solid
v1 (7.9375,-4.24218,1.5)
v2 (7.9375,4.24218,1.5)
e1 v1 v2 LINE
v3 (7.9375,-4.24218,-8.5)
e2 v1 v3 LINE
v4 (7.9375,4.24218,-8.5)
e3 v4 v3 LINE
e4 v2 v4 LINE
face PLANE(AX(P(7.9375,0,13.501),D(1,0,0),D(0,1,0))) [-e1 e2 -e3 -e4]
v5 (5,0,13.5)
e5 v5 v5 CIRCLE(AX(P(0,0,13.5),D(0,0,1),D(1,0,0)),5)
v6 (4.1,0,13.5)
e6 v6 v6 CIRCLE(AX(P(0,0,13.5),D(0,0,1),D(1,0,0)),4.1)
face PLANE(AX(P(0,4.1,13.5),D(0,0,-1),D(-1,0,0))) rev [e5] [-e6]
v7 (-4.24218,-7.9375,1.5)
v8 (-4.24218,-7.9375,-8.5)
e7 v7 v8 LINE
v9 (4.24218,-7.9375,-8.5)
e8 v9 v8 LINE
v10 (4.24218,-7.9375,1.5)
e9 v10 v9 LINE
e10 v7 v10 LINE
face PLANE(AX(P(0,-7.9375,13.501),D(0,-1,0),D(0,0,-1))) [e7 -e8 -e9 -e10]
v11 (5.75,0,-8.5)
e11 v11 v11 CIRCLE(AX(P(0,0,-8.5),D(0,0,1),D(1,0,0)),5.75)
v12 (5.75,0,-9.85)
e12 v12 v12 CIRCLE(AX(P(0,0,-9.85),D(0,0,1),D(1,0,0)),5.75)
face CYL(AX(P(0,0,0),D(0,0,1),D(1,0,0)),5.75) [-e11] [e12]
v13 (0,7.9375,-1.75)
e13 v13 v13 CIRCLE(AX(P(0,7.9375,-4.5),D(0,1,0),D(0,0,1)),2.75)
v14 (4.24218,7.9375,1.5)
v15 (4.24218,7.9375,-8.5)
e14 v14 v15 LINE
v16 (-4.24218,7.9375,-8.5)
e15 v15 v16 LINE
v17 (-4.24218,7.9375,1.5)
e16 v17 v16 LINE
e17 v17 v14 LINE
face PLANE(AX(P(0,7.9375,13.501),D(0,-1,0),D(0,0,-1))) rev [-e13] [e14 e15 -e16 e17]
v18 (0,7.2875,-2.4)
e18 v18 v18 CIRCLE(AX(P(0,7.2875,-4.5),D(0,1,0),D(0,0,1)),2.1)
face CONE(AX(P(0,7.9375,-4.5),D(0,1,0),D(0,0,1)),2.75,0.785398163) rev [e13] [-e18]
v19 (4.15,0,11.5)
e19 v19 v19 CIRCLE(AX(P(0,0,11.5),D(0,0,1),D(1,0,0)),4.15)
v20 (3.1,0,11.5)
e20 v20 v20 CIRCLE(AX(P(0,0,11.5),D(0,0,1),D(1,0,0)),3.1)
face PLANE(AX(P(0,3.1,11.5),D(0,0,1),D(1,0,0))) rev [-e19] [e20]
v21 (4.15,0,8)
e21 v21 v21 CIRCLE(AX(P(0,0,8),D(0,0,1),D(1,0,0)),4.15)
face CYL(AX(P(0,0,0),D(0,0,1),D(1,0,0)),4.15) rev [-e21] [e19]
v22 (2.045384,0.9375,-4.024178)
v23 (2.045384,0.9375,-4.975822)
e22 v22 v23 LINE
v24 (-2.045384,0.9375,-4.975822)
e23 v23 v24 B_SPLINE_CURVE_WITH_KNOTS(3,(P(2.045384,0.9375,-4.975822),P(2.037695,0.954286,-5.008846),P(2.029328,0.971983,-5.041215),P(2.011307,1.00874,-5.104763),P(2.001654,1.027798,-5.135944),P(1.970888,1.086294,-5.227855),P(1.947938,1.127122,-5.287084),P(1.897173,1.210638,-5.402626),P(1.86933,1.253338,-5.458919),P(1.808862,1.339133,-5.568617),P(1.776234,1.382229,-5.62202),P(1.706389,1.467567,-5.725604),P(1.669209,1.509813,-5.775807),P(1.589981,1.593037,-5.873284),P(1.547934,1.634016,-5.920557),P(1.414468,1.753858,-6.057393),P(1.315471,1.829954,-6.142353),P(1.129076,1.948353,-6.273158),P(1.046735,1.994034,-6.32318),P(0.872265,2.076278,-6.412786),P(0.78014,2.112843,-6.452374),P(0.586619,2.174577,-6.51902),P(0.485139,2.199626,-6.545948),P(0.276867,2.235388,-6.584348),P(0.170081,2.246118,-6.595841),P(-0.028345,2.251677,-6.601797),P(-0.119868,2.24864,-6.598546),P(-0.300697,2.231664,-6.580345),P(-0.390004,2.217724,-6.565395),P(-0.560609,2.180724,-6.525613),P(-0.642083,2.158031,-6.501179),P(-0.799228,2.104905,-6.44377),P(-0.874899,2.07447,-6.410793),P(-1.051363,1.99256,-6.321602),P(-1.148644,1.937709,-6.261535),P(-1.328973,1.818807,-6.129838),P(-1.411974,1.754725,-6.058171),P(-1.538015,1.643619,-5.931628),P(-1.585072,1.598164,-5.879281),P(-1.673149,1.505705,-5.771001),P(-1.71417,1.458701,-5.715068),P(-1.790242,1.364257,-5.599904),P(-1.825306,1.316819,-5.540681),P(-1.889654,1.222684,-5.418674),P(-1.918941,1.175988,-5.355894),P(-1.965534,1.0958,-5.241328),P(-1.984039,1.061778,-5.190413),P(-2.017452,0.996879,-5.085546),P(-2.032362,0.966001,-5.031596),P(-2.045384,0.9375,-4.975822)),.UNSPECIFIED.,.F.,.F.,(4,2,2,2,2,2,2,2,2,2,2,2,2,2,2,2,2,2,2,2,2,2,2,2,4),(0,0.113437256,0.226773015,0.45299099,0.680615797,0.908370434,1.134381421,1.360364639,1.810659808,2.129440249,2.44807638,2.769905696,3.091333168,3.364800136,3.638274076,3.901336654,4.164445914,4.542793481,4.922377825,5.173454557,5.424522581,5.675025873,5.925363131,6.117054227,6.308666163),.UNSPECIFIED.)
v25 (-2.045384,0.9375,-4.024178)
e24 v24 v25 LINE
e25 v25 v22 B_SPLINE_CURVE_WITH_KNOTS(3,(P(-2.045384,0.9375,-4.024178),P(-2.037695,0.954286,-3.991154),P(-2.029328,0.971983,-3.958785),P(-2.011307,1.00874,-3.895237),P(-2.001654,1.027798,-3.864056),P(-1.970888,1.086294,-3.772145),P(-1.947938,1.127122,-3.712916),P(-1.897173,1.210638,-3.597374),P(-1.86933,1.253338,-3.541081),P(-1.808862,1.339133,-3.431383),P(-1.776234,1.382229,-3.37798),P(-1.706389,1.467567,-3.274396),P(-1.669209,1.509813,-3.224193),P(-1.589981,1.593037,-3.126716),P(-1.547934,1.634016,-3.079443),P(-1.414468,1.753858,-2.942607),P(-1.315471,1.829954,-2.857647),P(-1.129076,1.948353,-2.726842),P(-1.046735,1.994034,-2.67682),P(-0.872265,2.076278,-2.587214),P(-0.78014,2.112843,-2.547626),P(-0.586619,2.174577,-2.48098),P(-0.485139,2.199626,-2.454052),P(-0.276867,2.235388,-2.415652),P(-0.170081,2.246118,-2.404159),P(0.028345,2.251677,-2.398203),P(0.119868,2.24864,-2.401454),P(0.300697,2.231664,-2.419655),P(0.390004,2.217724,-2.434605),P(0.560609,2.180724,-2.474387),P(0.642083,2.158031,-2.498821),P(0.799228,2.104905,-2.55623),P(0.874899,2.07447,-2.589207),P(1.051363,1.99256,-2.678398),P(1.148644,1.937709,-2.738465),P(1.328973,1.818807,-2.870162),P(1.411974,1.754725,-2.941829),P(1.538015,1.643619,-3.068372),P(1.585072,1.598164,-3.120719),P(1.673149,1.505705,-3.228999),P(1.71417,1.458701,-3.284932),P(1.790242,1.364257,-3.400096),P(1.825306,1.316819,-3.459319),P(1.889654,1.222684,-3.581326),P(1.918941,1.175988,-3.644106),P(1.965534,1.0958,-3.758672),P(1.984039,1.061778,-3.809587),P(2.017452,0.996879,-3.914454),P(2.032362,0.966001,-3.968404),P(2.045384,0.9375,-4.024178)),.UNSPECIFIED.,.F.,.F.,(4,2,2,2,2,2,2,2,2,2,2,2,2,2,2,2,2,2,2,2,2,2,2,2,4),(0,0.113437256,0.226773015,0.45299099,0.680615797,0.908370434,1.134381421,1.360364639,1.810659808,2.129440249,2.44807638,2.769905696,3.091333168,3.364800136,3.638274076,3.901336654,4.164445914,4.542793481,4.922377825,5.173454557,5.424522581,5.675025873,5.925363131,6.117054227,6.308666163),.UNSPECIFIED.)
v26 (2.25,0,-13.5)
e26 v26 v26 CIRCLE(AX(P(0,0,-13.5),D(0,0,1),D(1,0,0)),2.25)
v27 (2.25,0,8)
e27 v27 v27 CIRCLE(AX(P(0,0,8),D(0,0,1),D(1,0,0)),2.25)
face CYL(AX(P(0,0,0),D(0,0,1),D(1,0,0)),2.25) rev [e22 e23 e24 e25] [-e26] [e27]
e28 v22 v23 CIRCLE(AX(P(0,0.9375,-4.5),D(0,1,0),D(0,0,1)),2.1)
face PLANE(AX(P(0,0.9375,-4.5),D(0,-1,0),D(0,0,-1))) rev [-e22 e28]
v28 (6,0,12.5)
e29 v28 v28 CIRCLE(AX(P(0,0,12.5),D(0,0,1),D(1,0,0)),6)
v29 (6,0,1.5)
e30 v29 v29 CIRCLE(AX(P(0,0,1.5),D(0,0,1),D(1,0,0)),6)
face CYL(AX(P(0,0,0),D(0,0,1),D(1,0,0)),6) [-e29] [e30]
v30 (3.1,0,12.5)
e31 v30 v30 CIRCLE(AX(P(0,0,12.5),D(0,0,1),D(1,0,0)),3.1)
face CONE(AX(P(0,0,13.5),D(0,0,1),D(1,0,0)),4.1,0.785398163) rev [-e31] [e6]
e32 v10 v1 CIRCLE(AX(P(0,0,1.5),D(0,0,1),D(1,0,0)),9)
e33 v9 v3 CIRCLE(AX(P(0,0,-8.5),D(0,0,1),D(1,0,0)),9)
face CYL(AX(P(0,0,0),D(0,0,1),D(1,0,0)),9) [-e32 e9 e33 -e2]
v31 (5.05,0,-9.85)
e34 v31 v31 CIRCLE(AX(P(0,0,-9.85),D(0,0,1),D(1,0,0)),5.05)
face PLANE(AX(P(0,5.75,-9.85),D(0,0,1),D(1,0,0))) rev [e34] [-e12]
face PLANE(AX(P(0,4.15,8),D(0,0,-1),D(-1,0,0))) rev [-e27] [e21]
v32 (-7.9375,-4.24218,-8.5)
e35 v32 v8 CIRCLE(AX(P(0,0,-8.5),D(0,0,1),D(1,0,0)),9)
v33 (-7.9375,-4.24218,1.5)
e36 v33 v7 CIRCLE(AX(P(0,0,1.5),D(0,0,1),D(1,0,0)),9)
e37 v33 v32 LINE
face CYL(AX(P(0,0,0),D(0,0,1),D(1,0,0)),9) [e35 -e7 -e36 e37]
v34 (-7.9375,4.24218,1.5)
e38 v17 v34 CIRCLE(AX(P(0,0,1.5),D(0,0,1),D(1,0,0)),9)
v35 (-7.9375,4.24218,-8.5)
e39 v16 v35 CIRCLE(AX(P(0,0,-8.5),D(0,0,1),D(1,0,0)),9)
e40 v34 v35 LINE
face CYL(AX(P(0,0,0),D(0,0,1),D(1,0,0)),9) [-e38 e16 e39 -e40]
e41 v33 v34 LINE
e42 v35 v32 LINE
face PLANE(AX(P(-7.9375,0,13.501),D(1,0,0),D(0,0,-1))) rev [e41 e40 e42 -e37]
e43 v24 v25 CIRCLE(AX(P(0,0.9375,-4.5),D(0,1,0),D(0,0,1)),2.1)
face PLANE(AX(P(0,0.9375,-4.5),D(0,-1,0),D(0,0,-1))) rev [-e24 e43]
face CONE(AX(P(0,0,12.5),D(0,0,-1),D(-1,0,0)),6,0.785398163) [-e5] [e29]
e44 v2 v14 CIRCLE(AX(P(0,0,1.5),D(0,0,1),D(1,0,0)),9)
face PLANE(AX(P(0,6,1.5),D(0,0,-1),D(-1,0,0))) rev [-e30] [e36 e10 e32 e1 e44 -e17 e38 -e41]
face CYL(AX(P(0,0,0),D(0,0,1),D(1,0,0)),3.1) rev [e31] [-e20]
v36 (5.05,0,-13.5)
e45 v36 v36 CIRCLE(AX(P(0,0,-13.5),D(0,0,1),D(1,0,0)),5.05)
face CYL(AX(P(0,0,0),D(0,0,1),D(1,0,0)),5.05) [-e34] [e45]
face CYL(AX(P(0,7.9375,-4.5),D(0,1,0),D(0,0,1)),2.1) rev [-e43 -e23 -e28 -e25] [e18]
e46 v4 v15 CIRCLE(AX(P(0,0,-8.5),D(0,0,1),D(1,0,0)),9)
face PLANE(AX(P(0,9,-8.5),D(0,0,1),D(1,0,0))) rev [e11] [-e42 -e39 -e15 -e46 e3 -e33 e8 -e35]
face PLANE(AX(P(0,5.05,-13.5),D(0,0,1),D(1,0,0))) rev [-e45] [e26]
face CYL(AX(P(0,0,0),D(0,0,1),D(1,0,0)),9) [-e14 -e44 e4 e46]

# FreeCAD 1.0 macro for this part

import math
import FreeCAD as App
import Part
import Sketcher

V = App.Vector
Q = App.Units.Quantity

doc = App.newDocument("Part")
body = doc.addObject("PartDesign::Body", "Body")

# Sketch on YZ plane
sketch1 = body.newObject("Sketcher::SketchObject", "Sketch")
sketch1.AttachmentSupport = (doc.getObject("YZ_Plane"), [""])
sketch1.MapMode = "FlatFace"
sketch1.addGeometry([
    Part.LineSegment(V(4.1, 13.5, 0), V(3.1, 12.5, 0)),  # 0
    Part.LineSegment(V(3.1, 12.5, 0), V(3.1, 11.5, 0)),  # 1
    Part.LineSegment(V(3.1, 11.5, 0), V(4.2, 11.5, 0)),  # 2
    Part.LineSegment(V(4.2, 11.5, 0), V(4.2, 8, 0)),  # 3
    Part.LineSegment(V(4.2, 8, 0), V(2.2, 8, 0)),  # 4
    Part.LineSegment(V(2.2, 8, 0), V(2.2, -13.5, 0)),  # 5
    Part.LineSegment(V(2.2, -13.5, 0), V(5, -13.5, 0)),  # 6
    Part.LineSegment(V(5, -13.5, 0), V(5, -9.8, 0)),  # 7
    Part.LineSegment(V(5, -9.8, 0), V(5.8, -9.8, 0)),  # 8
    Part.LineSegment(V(5.8, -9.8, 0), V(5.8, -8.5, 0)),  # 9
    Part.LineSegment(V(5.8, -8.5, 0), V(9, -8.5, 0)),  # 10
    Part.LineSegment(V(9, -8.5, 0), V(9, 1.5, 0)),  # 11
    Part.LineSegment(V(9, 1.5, 0), V(6, 1.5, 0)),  # 12
    Part.LineSegment(V(6, 1.5, 0), V(6, 12.5, 0)),  # 13
    Part.LineSegment(V(6, 12.5, 0), V(5, 13.5, 0)),  # 14
    Part.LineSegment(V(5, 13.5, 0), V(4.1, 13.5, 0)),  # 15
], False)
sketch1.addConstraint([
    Sketcher.Constraint("Coincident", 0, 2, 1, 1),
    Sketcher.Constraint("Coincident", 1, 2, 2, 1),
    Sketcher.Constraint("Coincident", 2, 2, 3, 1),
    Sketcher.Constraint("Coincident", 3, 2, 4, 1),
    Sketcher.Constraint("Coincident", 4, 2, 5, 1),
    Sketcher.Constraint("Coincident", 5, 2, 6, 1),
    Sketcher.Constraint("Coincident", 6, 2, 7, 1),
    Sketcher.Constraint("Coincident", 7, 2, 8, 1),
    Sketcher.Constraint("Coincident", 8, 2, 9, 1),
    Sketcher.Constraint("Coincident", 9, 2, 10, 1),
    Sketcher.Constraint("Coincident", 10, 2, 11, 1),
    Sketcher.Constraint("Coincident", 11, 2, 12, 1),
    Sketcher.Constraint("Coincident", 12, 2, 13, 1),
    Sketcher.Constraint("Coincident", 13, 2, 14, 1),
    Sketcher.Constraint("Coincident", 14, 2, 15, 1),
    Sketcher.Constraint("Coincident", 15, 2, 0, 1),
    Sketcher.Constraint("Vertical", 1),
    Sketcher.Constraint("Horizontal", 2),
    Sketcher.Constraint("Vertical", 3),
    Sketcher.Constraint("Horizontal", 4),
    Sketcher.Constraint("Vertical", 5),
    Sketcher.Constraint("Horizontal", 6),
    Sketcher.Constraint("Vertical", 7),
    Sketcher.Constraint("Horizontal", 8),
    Sketcher.Constraint("Vertical", 9),
    Sketcher.Constraint("Horizontal", 10),
    Sketcher.Constraint("Vertical", 11),
    Sketcher.Constraint("Horizontal", 12),
    Sketcher.Constraint("Vertical", 13),
    Sketcher.Constraint("Horizontal", 15),
    Sketcher.Constraint("Perpendicular", 0, 14),
    Sketcher.Constraint("Horizontal", 0, 2, 13, 2),
    Sketcher.Constraint("Equal", 0, 14),
    Sketcher.Constraint("DistanceX", 12, 2, 12, 1, Q("3 mm")),
    Sketcher.Constraint("DistanceY", 1, 2, 1, 1, Q("1 mm")),
    Sketcher.Constraint("DistanceY", 11, 1, 11, 2, Q("10 mm")),
    Sketcher.Constraint("DistanceY", 13, 1, 13, 2, Q("11 mm")),
    Sketcher.Constraint("DistanceX", 4, 2, 4, 1, Q("1.9 mm")),
    Sketcher.Constraint("DistanceX", 6, 1, 6, 2, Q("2.8 mm")),
    Sketcher.Constraint("DistanceX", 8, 1, 8, 2, Q("0.7 mm")),
    Sketcher.Constraint("DistanceX", 15, 2, 15, 1, Q("0.9 mm")),
    Sketcher.Constraint("DistanceY", 3, 2, 3, 1, Q("3.5 mm")),
    Sketcher.Constraint("DistanceY", 5, 2, 5, 1, Q("21.5 mm")),
    Sketcher.Constraint("DistanceY", -1, 1, 3, 2, Q("8 mm")),
    Sketcher.Constraint("DistanceX", -1, 1, 10, 2, Q("9 mm")),
    Sketcher.Constraint("DistanceX", -1, 1, 14, 2, Q("5 mm")),
    Sketcher.Constraint("DistanceX", 2, 1, 2, 2, Q("1.05 mm")),
    Sketcher.Constraint("DistanceY", 7, 1, 7, 2, Q("3.65 mm")),
])
revolution = body.newObject("PartDesign::Revolution", "Revolution")
revolution.Profile = sketch1
revolution.ReferenceAxis = (sketch1, ["V_Axis"])
revolution.Angle = 360

# Sketch on XY plane
sketch2 = body.newObject("Sketcher::SketchObject", "Sketch001")
sketch2.AttachmentSupport = (doc.getObject("XY_Plane"), [""])
sketch2.MapMode = "FlatFace"
sketch2.AttachmentOffset = App.Placement(V(0, 0, -8.5), App.Rotation())
sketch2.addGeometry([
    Part.ArcOfCircle(Part.Circle(V(0, 0, 0), V(0, 0, 1), 9), math.radians(62), math.radians(118)),
    Part.LineSegment(V(4, 8, 0), V(-4, 8, 0)),
], False)
sketch2.addConstraint([
    Sketcher.Constraint("Coincident", 0, 1, 1, 1),
    Sketcher.Constraint("Coincident", 1, 2, 0, 2),
    Sketcher.Constraint("Horizontal", 1),
    Sketcher.Constraint("Coincident", 0, 3, -1, 1),
    Sketcher.Constraint("Radius", 0, Q("9 mm")),
    Sketcher.Constraint("DistanceX", 1, 2, 1, 1, Q("8.484361 mm")),
])
pocket1 = body.newObject("PartDesign::Pocket", "Pocket")
pocket1.Profile = sketch2
pocket1.Type = "UpToFirst"
pocket1.Reversed = True

# Sketch on XY plane
sketch3 = body.newObject("Sketcher::SketchObject", "Sketch002")
sketch3.AttachmentSupport = (doc.getObject("XY_Plane"), [""])
sketch3.MapMode = "FlatFace"
sketch3.AttachmentOffset = App.Placement(V(0, 0, -8.5), App.Rotation())
sketch3.addGeometry([
    Part.LineSegment(V(8, -4, 0), V(8, 4, 0)),
    Part.ArcOfCircle(Part.Circle(V(0, 0, 0), V(0, 0, 1), 9), math.radians(-28), math.radians(28)),
], False)
sketch3.addConstraint([
    Sketcher.Constraint("Coincident", 0, 1, 1, 1),
    Sketcher.Constraint("Coincident", 1, 2, 0, 2),
    Sketcher.Constraint("Vertical", 0),
    Sketcher.Constraint("Coincident", 1, 3, -1, 1),
    Sketcher.Constraint("Radius", 1, Q("9 mm")),
    Sketcher.Constraint("DistanceY", 0, 1, 0, 2, Q("8.484361 mm")),
])
pocket2 = body.newObject("PartDesign::Pocket", "Pocket001")
pocket2.Profile = sketch3
pocket2.Type = "UpToFirst"
pocket2.Reversed = True

# Sketch on XY plane
sketch4 = body.newObject("Sketcher::SketchObject", "Sketch003")
sketch4.AttachmentSupport = (doc.getObject("XY_Plane"), [""])
sketch4.MapMode = "FlatFace"
sketch4.AttachmentOffset = App.Placement(V(0, 0, -8.5), App.Rotation())
sketch4.addGeometry([
    Part.LineSegment(V(-4, -8, 0), V(4, -8, 0)),
    Part.ArcOfCircle(Part.Circle(V(0, 0, 0), V(0, 0, 1), 9), math.radians(-118), math.radians(-62)),
], False)
sketch4.addConstraint([
    Sketcher.Constraint("Coincident", 0, 1, 1, 1),
    Sketcher.Constraint("Coincident", 1, 2, 0, 2),
    Sketcher.Constraint("Horizontal", 0),
    Sketcher.Constraint("Coincident", 1, 3, -1, 1),
    Sketcher.Constraint("Radius", 1, Q("9 mm")),
    Sketcher.Constraint("DistanceX", 0, 1, 0, 2, Q("8.484361 mm")),
])
pocket3 = body.newObject("PartDesign::Pocket", "Pocket002")
pocket3.Profile = sketch4
pocket3.Type = "UpToFirst"
pocket3.Reversed = True

# Sketch on XY plane
sketch5 = body.newObject("Sketcher::SketchObject", "Sketch004")
sketch5.AttachmentSupport = (doc.getObject("XY_Plane"), [""])
sketch5.MapMode = "FlatFace"
sketch5.AttachmentOffset = App.Placement(V(0, 0, -8.5), App.Rotation())
sketch5.addGeometry([
    Part.ArcOfCircle(Part.Circle(V(0, 0, 0), V(0, 0, 1), 9), math.radians(152), math.radians(180)),
    Part.LineSegment(V(-7.9, 4.2, 0), V(-7.9, -4.2, 0)),
    Part.ArcOfCircle(Part.Circle(V(0, 0, 0), V(0, 0, 1), 9), math.radians(180), math.radians(208)),
], False)
sketch5.addConstraint([
    Sketcher.Constraint("Coincident", 0, 1, 1, 1),
    Sketcher.Constraint("Coincident", 1, 2, 2, 2),
    Sketcher.Constraint("Tangent", 2, 1, 0, 2),
    Sketcher.Constraint("Vertical", 1),
    Sketcher.Constraint("Coincident", 0, 3, -1, 1),
    Sketcher.Constraint("Equal", 0, 2),
    Sketcher.Constraint("PointOnObject", 2, 1, -1),
    Sketcher.Constraint("Radius", 0, Q("9 mm")),
    Sketcher.Constraint("DistanceY", 1, 2, 1, 1, Q("8.484361 mm")),
])
pocket4 = body.newObject("PartDesign::Pocket", "Pocket003")
pocket4.Profile = sketch5
pocket4.Type = "UpToFirst"
pocket4.Reversed = True

# Sketch on XZ plane
sketch6 = body.newObject("Sketcher::SketchObject", "Sketch005")
sketch6.AttachmentSupport = (doc.getObject("XZ_Plane"), [""])
sketch6.MapMode = "FlatFace"
sketch6.AttachmentOffset = App.Placement(V(0, 0, -7.9375), App.Rotation())
sketch6.addGeometry(Part.Circle(V(0, -4.5, 0), V(0, 0, 1), 2.1), False)
sketch6.addConstraint([
    Sketcher.Constraint("PointOnObject", 0, 3, -2),
    Sketcher.Constraint("Diameter", 0, Q("4.2 mm")),
    Sketcher.Constraint("DistanceY", 0, 3, -1, 1, Q("4.5 mm")),
])
doc.recompute()
hole = body.newObject("PartDesign::Hole", "Hole")
hole.Profile = sketch6
hole.ThreadType = "None"
hole.Diameter = 4.2
hole.DepthType = "Dimension"
hole.Depth = 7
hole.DrillPoint = "Flat"
hole.HoleCutType = "Countersink"
hole.HoleCutDiameter = 5.5
hole.HoleCutCountersinkAngle = 90
hole.Reversed = True

doc.recompute()
